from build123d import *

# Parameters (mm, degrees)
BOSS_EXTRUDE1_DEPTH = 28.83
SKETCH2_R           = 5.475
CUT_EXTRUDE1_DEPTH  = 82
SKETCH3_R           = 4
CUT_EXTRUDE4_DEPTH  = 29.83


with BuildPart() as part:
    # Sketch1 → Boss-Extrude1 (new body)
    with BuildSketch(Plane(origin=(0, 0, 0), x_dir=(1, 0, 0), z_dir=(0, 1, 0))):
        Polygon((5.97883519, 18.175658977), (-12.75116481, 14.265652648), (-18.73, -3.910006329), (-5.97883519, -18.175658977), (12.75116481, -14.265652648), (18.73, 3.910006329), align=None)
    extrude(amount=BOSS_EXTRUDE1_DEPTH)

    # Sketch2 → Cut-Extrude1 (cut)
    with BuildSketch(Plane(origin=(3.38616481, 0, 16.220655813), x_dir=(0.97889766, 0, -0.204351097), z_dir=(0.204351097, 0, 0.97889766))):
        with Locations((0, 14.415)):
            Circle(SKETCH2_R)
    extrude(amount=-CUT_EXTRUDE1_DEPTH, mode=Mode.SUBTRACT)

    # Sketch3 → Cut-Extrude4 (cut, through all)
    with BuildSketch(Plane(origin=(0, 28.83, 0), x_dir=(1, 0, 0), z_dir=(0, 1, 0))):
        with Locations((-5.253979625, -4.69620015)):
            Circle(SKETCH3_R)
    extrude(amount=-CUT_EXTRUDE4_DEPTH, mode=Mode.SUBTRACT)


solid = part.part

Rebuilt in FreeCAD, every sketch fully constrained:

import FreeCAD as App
import Part
import Sketcher


def add_polygon(sketch, points):
    """Adds a closed chain of lines whose ends are joined by coincident constraints."""
    first, n = sketch.GeometryCount, len(points)
    for a, b in zip(points, points[1:] + points[:1]):
        sketch.addGeometry(Part.LineSegment(App.Vector(*a, 0), App.Vector(*b, 0)), False)
    for i in range(n):
        sketch.addConstraint(Sketcher.Constraint("Coincident", first + i, 2, first + (i + 1) % n, 1))

doc = App.newDocument("Part")
body = doc.addObject("PartDesign::Body", "Body")

sketch1 = body.newObject("Sketcher::SketchObject", "Sketch")
sketch1.AttachmentSupport = (doc.getObject("XZ_Plane"), [""])
sketch1.MapMode = "FlatFace"
add_polygon(sketch1, [(5.978835, -18.175659), (-12.751165, -14.265653), (-18.73, 3.910006), (-5.978835, 18.175659), (12.751165, 14.265653), (18.73, -3.910006)])
sketch1.addConstraint([
    Sketcher.Constraint("Symmetric", 0, 2, 3, 2, -1, 1),
    Sketcher.Constraint("Symmetric", 1, 2, 4, 2, -1, 1),
    Sketcher.Constraint("Symmetric", 2, 2, 5, 2, -1, 1),
    Sketcher.Constraint("Equal", 0, 1),
    Sketcher.Constraint("Equal", 1, 2),
    Sketcher.Constraint("DistanceX", 1, 2, -1, 1, 18.73),
    Sketcher.Constraint("DistanceX", 2, 2, 3, 2, 18.73),
    Sketcher.Constraint("DistanceY", -1, 1, 2, 2, 18.175659),
    Sketcher.Constraint("DistanceY", 0, 2, 1, 2, 18.175659),
])
pad1 = body.newObject("PartDesign::Pad", "Pad")
pad1.Profile = sketch1
pad1.Length = 28.83
pad1.Reversed = True

sketch2 = body.newObject("Sketcher::SketchObject", "Sketch001")
sketch2.Placement = App.Placement(App.Vector(3.386165, 0, 16.220656), App.Rotation(App.Vector(0.97889766, 0, -0.204351097), App.Vector(0, 1, 0), App.Vector(0.204351097, 0, 0.97889766), "ZXY"))
sketch2.addGeometry(Part.Circle(App.Vector(0, 14.415, 0), App.Vector(0, 0, 1), 5.475), False)
sketch2.addConstraint([
    Sketcher.Constraint("PointOnObject", 0, 3, -2),
    Sketcher.Constraint("Diameter", 0, 10.95),
    Sketcher.Constraint("DistanceY", -1, 1, 0, 3, 14.415),
])
pocket1 = body.newObject("PartDesign::Pocket", "Pocket")
pocket1.Profile = sketch2
pocket1.Length = 82

sketch3 = body.newObject("Sketcher::SketchObject", "Sketch002")
sketch3.AttachmentSupport = (doc.getObject("XZ_Plane"), [""])
sketch3.MapMode = "FlatFace"
sketch3.AttachmentOffset = App.Placement(App.Vector(0, 0, -28.83), App.Rotation())
sketch3.addGeometry(Part.Circle(App.Vector(-5.25398, 4.6962, 0), App.Vector(0, 0, 1), 4), False)
sketch3.addConstraint([
    Sketcher.Constraint("Diameter", 0, 8.0),
    Sketcher.Constraint("DistanceY", -1, 1, 0, 3, 4.6962),
    Sketcher.Constraint("DistanceX", 0, 3, -1, 1, 5.25398),
])
pocket2 = body.newObject("PartDesign::Pocket", "Pocket001")
pocket2.Profile = sketch3
pocket2.Type = "ThroughAll"
pocket2.Reversed = True

doc.recompute()
